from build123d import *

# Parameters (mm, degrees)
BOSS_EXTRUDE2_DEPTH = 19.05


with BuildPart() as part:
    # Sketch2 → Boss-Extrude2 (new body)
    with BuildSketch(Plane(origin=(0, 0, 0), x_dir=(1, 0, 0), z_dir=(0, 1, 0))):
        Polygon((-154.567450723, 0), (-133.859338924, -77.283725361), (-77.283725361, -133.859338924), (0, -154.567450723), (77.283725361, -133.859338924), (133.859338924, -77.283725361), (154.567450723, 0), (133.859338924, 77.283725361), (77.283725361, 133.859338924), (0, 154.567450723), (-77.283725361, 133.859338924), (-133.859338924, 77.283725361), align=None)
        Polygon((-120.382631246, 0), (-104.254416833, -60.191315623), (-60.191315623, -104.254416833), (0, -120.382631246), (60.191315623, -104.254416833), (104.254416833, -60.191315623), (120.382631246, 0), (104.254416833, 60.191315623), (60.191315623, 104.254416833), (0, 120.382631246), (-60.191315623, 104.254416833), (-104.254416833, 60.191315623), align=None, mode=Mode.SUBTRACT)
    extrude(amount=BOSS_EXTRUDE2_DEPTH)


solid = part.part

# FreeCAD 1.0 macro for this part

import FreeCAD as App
import Part
import Sketcher
from FreeCAD import Vector
Q = App.Units.Quantity


def add_polygon(sketch, points):
    """Adds a closed chain of lines whose ends are joined by coincident constraints."""
    first, n = sketch.GeometryCount, len(points)
    for a, b in zip(points, points[1:] + points[:1]):
        sketch.addGeometry(Part.LineSegment(App.Vector(*a, 0), App.Vector(*b, 0)), False)
    for i in range(n):
        sketch.addConstraint(Sketcher.Constraint("Coincident", first + i, 2, first + (i + 1) % n, 1))

doc = App.newDocument("Part")
params = doc.addObject("Spreadsheet::Sheet", "Params")
for row, (alias, value) in enumerate([
    ("sketch1_length", "3.15 in"),
    ("pad1_length", "0.75 in"),
], start=1):
    params.set(f"A{row}", alias)
    params.set(f"B{row}", "=" + value)
    params.setAlias(f"B{row}", alias)

body = doc.addObject("PartDesign::Body", "Body")

# Sketch on XZ plane
sketch1 = body.newObject("Sketcher::SketchObject", "Sketch")
sketch1.AttachmentSupport = (doc.getObject("XZ_Plane"), [""])
sketch1.MapMode = "FlatFace"
add_polygon(sketch1, [(-155, 0), (-134, 77), (-77, 134), (0, 155), (77, 134), (134, 77), (155, 0), (134, -77), (77, -134), (0, -155), (-77, -134), (-134, -77)])  # lines 0-11
add_polygon(sketch1, [(-104, 60), (-120, 0), (-104, -60), (-60, -104), (0, -120), (60, -104), (104, -60), (120, 0), (104, 60), (60, 104), (0, 120), (-60, 104)])  # lines 12-23
sketch1.addConstraint([
    Sketcher.Constraint("Symmetric", 0, 2, 6, 2, -1, 1),
    Sketcher.Constraint("Symmetric", 1, 2, 7, 2, -1, 1),
    Sketcher.Constraint("Symmetric", 2, 2, 8, 2, -1, 1),
    Sketcher.Constraint("Symmetric", 3, 2, 9, 2, -1, 1),
    Sketcher.Constraint("Symmetric", 4, 2, 10, 2, -1, 1),
    Sketcher.Constraint("Symmetric", 5, 2, 11, 2, -1, 1),
    Sketcher.Constraint("Symmetric", 12, 2, 18, 2, -1, 1),
    Sketcher.Constraint("Symmetric", 13, 2, 19, 2, -1, 1),
    Sketcher.Constraint("Symmetric", 14, 2, 20, 2, -1, 1),
    Sketcher.Constraint("Symmetric", 15, 2, 21, 2, -1, 1),
    Sketcher.Constraint("Symmetric", 16, 2, 22, 2, -1, 1),
    Sketcher.Constraint("Symmetric", 17, 2, 23, 2, -1, 1),
    Sketcher.Constraint("Symmetric", 1, 2, 3, 2, -2),
    Sketcher.Constraint("Symmetric", 0, 2, 4, 2, -2),
    Sketcher.Constraint("Symmetric", 14, 2, 16, 2, -2),
    Sketcher.Constraint("Symmetric", 13, 2, 17, 2, -2),
    Sketcher.Constraint("PointOnObject", 2, 2, -2),
    Sketcher.Constraint("PointOnObject", 5, 2, -1),
    Sketcher.Constraint("PointOnObject", 12, 2, -1),
    Sketcher.Constraint("PointOnObject", 15, 2, -2),
    Sketcher.Constraint("Perpendicular", 0, 3),
    Sketcher.Constraint("Perpendicular", 1, 4),
    Sketcher.Constraint("Perpendicular", 9, 12),
    Sketcher.Constraint("Parallel", 10, 14),
    Sketcher.Constraint("Perpendicular", 12, 15),
    Sketcher.Constraint("Equal", 0, 1),
    Sketcher.Constraint("Equal", 1, 2),
    Sketcher.Constraint("Equal", 13, 14),
    Sketcher.Constraint("Equal", 14, 15),
    Sketcher.Constraint("Angle", 0, Q("75 deg")),
    Sketcher.Constraint("Distance", 0, Q("3.15 in")),
    Sketcher.Constraint("DistanceX", 13, 2, 14, 2, 44.063101),
])
sketch1.setExpression("Constraints[54]", "Params.sketch1_length")
pad1 = body.newObject("PartDesign::Pad", "Pad")
pad1.Profile = sketch1
pad1.setExpression("Length", "Params.pad1_length")
pad1.Reversed = True

doc.recompute()
